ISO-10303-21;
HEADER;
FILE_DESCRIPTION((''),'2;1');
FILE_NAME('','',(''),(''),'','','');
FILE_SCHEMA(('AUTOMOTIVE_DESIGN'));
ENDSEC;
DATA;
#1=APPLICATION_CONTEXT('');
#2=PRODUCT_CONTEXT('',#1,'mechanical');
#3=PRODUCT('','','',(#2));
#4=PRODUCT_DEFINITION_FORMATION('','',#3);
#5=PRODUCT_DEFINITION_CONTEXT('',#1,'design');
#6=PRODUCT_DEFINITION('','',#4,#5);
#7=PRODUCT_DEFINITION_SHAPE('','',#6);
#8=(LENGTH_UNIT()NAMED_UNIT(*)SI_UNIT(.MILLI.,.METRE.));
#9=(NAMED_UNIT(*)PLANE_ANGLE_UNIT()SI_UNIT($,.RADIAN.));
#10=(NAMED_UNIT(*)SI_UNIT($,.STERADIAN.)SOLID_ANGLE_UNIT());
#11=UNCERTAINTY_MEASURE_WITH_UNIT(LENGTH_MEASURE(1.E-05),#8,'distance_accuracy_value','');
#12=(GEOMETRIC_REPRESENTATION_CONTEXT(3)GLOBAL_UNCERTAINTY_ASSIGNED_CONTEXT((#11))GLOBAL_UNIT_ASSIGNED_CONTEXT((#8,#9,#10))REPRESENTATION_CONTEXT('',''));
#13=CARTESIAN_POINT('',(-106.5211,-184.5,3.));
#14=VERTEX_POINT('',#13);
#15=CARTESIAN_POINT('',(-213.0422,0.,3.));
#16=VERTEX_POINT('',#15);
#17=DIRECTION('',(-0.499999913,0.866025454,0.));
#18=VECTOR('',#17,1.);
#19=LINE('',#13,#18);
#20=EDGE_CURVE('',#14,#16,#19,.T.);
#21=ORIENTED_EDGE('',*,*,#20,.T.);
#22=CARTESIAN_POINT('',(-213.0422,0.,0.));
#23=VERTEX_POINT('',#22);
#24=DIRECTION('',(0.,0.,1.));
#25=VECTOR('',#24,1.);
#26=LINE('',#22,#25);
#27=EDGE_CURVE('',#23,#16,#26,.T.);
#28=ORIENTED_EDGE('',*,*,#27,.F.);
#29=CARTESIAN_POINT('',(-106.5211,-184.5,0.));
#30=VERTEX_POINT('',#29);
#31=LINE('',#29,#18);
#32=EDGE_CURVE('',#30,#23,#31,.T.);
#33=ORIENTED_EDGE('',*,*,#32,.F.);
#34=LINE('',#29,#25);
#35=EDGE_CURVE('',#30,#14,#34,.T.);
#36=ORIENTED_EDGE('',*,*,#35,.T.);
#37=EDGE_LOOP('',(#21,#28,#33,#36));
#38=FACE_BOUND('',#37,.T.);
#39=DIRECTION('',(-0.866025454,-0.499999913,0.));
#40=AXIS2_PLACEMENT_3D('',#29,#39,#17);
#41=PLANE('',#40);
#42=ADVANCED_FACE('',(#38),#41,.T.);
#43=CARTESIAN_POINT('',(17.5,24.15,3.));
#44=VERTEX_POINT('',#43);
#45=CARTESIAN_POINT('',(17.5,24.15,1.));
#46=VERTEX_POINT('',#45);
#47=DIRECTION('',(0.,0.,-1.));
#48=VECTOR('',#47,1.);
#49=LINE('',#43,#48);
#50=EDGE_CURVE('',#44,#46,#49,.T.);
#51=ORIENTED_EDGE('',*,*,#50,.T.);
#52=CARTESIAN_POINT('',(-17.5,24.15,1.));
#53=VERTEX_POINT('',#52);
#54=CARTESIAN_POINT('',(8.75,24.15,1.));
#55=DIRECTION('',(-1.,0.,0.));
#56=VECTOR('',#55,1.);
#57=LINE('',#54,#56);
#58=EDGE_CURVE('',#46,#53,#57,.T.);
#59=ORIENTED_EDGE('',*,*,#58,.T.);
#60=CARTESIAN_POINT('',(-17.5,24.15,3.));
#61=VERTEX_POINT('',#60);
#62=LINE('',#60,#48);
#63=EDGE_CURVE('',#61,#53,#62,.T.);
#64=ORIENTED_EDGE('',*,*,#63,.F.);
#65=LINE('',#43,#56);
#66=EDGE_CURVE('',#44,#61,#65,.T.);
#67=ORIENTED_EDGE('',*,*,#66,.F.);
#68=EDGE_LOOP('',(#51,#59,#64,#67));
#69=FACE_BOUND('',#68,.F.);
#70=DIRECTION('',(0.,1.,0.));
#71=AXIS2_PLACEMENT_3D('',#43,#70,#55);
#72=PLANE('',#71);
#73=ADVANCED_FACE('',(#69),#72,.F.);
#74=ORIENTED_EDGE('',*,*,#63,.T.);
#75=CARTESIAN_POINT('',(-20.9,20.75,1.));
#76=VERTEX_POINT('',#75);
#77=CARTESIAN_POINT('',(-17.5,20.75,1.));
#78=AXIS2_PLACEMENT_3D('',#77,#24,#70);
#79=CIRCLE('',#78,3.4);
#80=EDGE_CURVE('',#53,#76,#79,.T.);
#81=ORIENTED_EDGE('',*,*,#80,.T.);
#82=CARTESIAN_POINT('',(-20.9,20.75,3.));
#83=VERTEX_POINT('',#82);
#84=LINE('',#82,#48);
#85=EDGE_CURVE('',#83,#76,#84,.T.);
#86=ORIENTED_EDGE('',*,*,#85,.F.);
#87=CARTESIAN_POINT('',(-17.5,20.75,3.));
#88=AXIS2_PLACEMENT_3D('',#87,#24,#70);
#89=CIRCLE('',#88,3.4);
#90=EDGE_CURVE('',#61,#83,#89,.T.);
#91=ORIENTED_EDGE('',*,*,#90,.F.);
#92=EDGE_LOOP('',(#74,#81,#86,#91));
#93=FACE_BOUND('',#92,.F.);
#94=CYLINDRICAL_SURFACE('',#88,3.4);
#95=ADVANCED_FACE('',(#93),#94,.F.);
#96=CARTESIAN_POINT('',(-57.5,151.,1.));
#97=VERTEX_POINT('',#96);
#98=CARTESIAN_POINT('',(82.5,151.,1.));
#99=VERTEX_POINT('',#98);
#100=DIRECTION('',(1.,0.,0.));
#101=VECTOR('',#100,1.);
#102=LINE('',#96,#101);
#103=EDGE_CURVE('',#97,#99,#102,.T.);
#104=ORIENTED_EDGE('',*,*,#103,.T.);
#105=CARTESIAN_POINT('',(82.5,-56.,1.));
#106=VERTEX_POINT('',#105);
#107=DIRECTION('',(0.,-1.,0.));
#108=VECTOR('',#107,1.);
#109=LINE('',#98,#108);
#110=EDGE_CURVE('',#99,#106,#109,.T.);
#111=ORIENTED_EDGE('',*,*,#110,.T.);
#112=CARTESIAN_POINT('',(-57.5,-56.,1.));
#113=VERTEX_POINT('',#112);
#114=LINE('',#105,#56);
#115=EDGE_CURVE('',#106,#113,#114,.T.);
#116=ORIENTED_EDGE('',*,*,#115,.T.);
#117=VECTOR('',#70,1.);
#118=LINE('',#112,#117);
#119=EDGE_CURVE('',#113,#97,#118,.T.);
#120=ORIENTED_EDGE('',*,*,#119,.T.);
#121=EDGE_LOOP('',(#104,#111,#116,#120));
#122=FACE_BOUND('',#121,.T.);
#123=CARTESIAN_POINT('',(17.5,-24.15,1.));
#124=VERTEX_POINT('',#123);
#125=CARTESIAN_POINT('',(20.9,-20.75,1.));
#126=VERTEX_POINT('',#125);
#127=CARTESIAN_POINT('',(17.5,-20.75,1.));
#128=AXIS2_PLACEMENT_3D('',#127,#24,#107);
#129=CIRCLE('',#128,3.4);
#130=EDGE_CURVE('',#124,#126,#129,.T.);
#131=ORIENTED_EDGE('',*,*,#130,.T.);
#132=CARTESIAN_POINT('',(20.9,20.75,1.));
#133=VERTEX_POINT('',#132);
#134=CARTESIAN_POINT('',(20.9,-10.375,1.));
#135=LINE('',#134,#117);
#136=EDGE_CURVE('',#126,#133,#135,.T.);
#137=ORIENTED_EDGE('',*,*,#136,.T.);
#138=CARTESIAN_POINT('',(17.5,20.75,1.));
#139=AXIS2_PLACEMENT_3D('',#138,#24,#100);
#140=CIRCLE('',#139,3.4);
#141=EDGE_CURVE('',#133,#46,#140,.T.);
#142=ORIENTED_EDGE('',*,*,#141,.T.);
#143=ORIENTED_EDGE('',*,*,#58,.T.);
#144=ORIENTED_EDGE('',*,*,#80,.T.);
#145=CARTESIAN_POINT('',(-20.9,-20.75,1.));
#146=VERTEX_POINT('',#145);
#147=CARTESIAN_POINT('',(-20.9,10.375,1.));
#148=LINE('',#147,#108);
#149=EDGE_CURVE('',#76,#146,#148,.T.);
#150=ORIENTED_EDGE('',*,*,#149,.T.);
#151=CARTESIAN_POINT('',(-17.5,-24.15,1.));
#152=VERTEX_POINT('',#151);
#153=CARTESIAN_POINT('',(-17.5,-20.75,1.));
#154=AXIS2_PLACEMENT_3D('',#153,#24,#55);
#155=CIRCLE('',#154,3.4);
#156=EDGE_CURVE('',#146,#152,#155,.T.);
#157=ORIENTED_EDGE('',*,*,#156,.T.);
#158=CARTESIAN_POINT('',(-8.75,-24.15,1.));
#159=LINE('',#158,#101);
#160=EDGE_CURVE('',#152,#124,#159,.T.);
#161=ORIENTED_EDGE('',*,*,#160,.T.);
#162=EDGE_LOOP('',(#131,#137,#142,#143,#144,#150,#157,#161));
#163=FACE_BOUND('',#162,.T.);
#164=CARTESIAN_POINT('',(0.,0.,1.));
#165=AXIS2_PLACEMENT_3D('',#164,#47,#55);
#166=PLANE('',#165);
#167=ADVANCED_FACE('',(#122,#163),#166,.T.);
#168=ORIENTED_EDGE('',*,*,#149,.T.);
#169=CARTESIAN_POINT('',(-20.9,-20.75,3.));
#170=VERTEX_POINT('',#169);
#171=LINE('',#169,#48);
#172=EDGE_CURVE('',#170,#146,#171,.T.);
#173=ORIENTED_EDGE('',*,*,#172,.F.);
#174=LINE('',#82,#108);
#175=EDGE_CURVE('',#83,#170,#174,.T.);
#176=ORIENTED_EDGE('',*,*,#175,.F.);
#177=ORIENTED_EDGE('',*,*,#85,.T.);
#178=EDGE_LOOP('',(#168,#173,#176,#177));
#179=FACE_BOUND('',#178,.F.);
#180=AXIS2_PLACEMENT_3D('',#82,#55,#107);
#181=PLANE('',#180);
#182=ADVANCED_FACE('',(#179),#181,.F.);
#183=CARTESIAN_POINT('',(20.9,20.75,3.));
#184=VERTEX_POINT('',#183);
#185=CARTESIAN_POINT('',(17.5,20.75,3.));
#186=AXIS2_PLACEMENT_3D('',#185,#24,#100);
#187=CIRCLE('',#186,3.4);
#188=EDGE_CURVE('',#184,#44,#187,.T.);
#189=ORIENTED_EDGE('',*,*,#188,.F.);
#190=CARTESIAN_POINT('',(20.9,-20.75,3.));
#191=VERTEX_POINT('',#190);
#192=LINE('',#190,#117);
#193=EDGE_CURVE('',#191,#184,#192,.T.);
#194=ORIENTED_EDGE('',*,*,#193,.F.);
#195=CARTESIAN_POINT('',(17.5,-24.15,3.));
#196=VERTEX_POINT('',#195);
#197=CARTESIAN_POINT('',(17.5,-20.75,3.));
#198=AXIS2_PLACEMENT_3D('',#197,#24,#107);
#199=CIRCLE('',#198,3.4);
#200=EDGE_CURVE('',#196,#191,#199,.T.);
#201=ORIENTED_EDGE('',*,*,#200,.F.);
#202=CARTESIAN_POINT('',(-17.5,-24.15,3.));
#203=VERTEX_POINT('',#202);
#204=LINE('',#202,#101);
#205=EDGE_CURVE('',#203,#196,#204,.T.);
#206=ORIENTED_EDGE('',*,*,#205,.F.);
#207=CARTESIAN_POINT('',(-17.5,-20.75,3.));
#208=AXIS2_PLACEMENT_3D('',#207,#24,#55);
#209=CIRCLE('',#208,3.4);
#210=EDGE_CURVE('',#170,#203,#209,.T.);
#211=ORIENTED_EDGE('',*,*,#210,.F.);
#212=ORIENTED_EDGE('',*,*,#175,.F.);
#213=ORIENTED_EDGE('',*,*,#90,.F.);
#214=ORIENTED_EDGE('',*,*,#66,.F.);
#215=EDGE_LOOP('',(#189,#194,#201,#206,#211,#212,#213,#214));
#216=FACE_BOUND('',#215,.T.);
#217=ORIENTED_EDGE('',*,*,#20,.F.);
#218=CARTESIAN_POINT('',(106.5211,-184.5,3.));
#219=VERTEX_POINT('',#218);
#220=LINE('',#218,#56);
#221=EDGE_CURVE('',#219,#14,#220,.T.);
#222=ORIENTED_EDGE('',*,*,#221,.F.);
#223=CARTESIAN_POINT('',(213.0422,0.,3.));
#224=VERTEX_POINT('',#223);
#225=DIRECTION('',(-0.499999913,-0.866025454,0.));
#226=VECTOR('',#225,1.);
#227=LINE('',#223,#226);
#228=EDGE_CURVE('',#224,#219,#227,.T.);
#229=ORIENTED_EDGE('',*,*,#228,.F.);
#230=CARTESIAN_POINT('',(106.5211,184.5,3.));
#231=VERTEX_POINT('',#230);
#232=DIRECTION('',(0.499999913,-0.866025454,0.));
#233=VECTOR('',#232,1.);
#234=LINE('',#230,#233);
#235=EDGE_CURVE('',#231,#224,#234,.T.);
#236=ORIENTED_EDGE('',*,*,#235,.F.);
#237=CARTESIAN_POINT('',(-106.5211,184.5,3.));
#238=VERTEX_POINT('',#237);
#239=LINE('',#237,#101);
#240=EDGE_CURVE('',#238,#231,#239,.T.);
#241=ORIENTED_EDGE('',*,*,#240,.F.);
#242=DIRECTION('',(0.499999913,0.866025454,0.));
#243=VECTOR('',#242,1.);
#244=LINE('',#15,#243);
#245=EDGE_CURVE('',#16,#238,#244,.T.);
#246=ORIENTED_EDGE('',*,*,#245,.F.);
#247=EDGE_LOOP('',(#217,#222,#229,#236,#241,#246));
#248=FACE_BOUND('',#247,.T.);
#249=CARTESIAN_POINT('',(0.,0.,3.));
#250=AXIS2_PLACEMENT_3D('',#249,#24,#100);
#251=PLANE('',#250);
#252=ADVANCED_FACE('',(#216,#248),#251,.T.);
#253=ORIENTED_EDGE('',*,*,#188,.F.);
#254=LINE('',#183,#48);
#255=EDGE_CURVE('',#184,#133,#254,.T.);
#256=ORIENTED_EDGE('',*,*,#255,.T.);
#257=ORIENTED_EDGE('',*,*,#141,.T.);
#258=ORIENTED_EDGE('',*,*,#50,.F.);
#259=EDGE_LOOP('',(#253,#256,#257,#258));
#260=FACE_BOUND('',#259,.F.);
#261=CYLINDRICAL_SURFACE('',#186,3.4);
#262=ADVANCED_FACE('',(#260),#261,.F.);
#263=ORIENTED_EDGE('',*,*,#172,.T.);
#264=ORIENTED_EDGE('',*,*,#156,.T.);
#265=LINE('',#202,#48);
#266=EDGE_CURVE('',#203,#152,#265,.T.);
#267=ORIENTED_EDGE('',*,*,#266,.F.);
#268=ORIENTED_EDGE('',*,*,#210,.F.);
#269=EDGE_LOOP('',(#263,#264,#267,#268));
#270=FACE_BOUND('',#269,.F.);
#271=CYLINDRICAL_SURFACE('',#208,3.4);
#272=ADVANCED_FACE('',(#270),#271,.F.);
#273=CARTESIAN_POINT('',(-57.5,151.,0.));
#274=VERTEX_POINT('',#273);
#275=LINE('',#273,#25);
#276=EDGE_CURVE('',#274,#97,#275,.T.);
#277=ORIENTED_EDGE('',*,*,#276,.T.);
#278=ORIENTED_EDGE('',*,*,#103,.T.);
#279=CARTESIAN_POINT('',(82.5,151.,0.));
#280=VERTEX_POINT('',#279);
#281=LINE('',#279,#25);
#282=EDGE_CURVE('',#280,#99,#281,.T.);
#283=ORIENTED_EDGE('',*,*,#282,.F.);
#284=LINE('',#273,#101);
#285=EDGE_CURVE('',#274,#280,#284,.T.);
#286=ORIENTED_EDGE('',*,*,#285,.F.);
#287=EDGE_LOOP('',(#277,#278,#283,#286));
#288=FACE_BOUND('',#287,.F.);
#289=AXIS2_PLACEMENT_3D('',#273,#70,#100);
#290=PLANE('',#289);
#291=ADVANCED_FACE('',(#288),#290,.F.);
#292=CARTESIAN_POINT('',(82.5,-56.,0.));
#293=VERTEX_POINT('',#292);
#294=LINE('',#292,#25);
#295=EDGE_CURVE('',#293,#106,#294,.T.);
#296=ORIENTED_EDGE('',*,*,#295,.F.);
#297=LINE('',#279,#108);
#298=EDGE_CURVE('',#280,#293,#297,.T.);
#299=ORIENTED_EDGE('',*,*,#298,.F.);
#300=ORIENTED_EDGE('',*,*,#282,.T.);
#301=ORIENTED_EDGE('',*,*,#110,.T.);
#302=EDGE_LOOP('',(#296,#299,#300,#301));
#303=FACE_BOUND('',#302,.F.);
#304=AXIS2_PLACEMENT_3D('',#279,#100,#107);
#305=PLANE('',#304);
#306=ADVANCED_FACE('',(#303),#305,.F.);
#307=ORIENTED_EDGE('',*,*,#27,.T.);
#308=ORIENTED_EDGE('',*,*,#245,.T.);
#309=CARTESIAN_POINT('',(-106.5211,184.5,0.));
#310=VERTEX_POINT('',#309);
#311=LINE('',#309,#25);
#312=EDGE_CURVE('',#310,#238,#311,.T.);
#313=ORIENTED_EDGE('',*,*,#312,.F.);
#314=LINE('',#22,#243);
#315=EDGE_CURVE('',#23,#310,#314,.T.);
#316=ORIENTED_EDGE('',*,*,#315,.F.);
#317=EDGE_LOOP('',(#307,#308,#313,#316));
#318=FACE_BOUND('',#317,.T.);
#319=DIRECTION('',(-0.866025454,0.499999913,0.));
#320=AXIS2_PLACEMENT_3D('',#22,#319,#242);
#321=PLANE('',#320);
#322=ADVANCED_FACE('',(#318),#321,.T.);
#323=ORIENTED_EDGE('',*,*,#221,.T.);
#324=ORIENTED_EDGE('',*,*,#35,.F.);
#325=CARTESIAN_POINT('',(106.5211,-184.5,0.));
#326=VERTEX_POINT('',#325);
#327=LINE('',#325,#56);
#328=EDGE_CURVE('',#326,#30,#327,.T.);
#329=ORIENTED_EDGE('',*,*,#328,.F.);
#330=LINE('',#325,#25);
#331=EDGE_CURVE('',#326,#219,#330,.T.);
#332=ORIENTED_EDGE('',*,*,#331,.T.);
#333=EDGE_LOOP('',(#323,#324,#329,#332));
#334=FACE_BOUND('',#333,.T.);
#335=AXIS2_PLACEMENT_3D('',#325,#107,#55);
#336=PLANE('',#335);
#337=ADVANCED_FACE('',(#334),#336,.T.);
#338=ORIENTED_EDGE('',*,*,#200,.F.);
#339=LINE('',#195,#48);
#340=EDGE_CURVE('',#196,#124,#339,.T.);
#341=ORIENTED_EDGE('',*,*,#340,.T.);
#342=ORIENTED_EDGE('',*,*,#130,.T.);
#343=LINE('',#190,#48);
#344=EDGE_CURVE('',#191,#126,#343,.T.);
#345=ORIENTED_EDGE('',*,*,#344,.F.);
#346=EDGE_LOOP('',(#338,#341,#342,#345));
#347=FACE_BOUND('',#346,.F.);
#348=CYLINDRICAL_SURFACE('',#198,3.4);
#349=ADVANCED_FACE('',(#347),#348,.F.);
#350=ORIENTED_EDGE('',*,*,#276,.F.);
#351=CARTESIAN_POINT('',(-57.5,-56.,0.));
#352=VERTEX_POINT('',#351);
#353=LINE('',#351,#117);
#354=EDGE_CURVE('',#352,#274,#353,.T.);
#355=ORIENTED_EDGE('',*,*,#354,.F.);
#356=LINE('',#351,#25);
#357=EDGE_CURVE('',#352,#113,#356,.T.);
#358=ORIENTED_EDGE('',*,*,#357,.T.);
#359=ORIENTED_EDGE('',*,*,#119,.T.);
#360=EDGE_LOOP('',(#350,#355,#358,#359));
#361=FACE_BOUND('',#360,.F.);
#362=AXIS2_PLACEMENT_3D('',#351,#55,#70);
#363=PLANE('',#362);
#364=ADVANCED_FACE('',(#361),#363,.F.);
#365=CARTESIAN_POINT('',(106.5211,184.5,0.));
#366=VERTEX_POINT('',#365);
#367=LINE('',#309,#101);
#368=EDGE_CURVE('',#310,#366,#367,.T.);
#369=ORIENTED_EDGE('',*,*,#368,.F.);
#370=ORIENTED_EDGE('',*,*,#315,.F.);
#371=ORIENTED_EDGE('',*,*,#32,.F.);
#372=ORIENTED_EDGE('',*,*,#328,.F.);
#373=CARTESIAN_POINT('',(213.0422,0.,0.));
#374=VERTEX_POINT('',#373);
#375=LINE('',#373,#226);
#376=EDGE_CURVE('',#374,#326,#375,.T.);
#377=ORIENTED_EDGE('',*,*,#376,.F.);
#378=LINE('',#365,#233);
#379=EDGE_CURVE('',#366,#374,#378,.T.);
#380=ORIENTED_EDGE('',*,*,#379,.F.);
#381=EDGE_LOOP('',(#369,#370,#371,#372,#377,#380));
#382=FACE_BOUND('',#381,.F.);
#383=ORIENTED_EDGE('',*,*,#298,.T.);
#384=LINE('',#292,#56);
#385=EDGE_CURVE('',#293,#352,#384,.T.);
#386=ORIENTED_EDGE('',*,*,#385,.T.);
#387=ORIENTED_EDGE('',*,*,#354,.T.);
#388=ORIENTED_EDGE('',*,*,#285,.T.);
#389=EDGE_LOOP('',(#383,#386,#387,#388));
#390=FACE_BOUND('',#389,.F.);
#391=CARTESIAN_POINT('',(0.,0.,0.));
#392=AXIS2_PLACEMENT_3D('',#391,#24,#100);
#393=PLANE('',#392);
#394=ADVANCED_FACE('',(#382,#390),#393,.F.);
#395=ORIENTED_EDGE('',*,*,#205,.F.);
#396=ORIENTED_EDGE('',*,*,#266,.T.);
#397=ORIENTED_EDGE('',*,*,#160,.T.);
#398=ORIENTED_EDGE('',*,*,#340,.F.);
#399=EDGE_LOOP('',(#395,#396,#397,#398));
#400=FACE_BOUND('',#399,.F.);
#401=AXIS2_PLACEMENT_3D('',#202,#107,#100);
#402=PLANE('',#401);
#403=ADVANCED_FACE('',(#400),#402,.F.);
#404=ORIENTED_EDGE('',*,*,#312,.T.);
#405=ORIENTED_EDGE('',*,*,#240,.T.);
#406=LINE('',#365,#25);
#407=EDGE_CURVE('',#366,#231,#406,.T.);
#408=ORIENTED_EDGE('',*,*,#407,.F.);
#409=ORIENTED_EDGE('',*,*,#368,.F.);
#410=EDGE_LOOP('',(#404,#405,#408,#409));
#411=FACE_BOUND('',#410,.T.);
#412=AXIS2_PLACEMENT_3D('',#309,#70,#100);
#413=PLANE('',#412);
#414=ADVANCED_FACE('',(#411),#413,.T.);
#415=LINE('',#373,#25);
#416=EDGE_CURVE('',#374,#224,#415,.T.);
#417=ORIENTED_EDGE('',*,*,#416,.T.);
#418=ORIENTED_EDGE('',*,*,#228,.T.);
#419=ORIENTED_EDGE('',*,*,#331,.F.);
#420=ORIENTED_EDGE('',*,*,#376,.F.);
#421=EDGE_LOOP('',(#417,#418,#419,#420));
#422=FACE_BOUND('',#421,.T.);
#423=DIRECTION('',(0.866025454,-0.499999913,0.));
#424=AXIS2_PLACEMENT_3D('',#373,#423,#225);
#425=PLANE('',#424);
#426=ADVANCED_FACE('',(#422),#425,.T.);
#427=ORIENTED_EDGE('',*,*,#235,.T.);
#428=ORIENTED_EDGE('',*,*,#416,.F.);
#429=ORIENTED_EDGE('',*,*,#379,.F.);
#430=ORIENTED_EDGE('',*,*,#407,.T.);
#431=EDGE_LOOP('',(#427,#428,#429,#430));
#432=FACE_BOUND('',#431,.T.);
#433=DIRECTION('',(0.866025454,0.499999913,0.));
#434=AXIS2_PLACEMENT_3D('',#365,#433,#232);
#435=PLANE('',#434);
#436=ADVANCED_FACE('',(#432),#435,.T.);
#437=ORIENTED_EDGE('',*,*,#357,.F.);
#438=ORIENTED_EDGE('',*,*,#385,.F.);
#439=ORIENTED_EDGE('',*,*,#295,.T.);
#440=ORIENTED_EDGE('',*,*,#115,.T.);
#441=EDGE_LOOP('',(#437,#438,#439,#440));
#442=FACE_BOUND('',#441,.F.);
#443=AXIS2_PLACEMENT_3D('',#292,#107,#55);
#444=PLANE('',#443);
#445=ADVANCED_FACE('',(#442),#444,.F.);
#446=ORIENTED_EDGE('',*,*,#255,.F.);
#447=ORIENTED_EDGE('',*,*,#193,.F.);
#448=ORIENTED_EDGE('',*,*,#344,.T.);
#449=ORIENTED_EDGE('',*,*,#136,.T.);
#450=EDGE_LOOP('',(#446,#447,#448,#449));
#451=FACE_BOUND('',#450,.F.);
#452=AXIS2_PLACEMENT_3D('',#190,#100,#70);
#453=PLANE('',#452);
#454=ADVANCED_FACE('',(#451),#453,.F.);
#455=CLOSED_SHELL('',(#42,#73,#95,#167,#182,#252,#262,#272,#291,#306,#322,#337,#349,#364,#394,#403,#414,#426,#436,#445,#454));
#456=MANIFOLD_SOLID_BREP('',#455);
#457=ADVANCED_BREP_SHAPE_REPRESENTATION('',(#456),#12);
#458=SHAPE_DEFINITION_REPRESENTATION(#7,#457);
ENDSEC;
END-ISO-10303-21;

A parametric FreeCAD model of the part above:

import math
import FreeCAD as App
import Part
import Sketcher
Q = App.Units.Quantity

doc = App.newDocument("Part")
body = doc.addObject("PartDesign::Body", "Body")

sketch1 = body.newObject("Sketcher::SketchObject", "Sketch")
sketch1.AttachmentSupport = (doc.getObject("XY_Plane"), [""])
sketch1.MapMode = "FlatFace"
sketch1.addGeometry([
    Part.LineSegment(App.Vector(107, -184, 0), App.Vector(213, 0, 0)),
    Part.LineSegment(App.Vector(213, 0, 0), App.Vector(107, 184, 0)),
    Part.LineSegment(App.Vector(107, 184, 0), App.Vector(-107, 184, 0)),
    Part.LineSegment(App.Vector(-107, 184, 0), App.Vector(-213, 0, 0)),
    Part.LineSegment(App.Vector(-213, 0, 0), App.Vector(-107, -184, 0)),
    Part.LineSegment(App.Vector(-107, -184, 0), App.Vector(107, -184, 0)),
], False)
sketch1.addConstraint([
    Sketcher.Constraint("Coincident", 0, 2, 1, 1),
    Sketcher.Constraint("Coincident", 1, 2, 2, 1),
    Sketcher.Constraint("Coincident", 2, 2, 3, 1),
    Sketcher.Constraint("Coincident", 3, 2, 4, 1),
    Sketcher.Constraint("Coincident", 4, 2, 5, 1),
    Sketcher.Constraint("Coincident", 5, 2, 0, 1),
    Sketcher.Constraint("Horizontal", 2),
    Sketcher.Constraint("Horizontal", 5),
    Sketcher.Constraint("Symmetric", 0, 2, 3, 2, -1, 1),
    Sketcher.Constraint("Symmetric", 1, 2, 4, 2, -1, 1),
    Sketcher.Constraint("PointOnObject", 0, 2, -1),
    Sketcher.Constraint("Parallel", 0, 3),
    Sketcher.Constraint("Vertical", 2, 2, 4, 2),
    Sketcher.Constraint("DistanceY", 4, 2, 2, 2, Q("369 mm")),
    Sketcher.Constraint("Angle", 0, Q("60 deg")),
    Sketcher.Constraint("DistanceX", 2, 2, 2, 1, Q("213.0422 mm")),
])
pad1 = body.newObject("PartDesign::Pad", "Pad")
pad1.Profile = sketch1
pad1.Length = 3

sketch2 = body.newObject("Sketcher::SketchObject", "Sketch001")
sketch2.AttachmentSupport = (doc.getObject("XY_Plane"), [""])
sketch2.MapMode = "FlatFace"
sketch2.AttachmentOffset = App.Placement(App.Vector(0, 0, 3), App.Rotation())
sketch2.addGeometry([
    Part.ArcOfCircle(Part.Circle(App.Vector(17.5, -20.8, 0), App.Vector(0, 0, 1), 3.4), math.radians(-90), math.radians(0)),
    Part.LineSegment(App.Vector(20.9, -20.8, 0), App.Vector(20.9, 20.8, 0)),
    Part.ArcOfCircle(Part.Circle(App.Vector(17.5, 20.8, 0), App.Vector(0, 0, 1), 3.4), math.radians(0), math.radians(90)),
    Part.LineSegment(App.Vector(17.5, 24.1, 0), App.Vector(-17.5, 24.1, 0)),
    Part.ArcOfCircle(Part.Circle(App.Vector(-17.5, 20.8, 0), App.Vector(0, 0, 1), 3.4), math.radians(90), math.radians(180)),
    Part.LineSegment(App.Vector(-20.9, 20.8, 0), App.Vector(-20.9, -20.8, 0)),
    Part.ArcOfCircle(Part.Circle(App.Vector(-17.5, -20.8, 0), App.Vector(0, 0, 1), 3.4), math.radians(180), math.radians(270)),
    Part.LineSegment(App.Vector(-17.5, -24.1, 0), App.Vector(17.5, -24.1, 0)),
], False)
sketch2.addConstraint([
    Sketcher.Constraint("Tangent", 0, 2, 1, 1),
    Sketcher.Constraint("Tangent", 1, 2, 2, 1),
    Sketcher.Constraint("Tangent", 2, 2, 3, 1),
    Sketcher.Constraint("Tangent", 3, 2, 4, 1),
    Sketcher.Constraint("Tangent", 4, 2, 5, 1),
    Sketcher.Constraint("Tangent", 5, 2, 6, 1),
    Sketcher.Constraint("Tangent", 6, 2, 7, 1),
    Sketcher.Constraint("Tangent", 7, 2, 0, 1),
    Sketcher.Constraint("Vertical", 1),
    Sketcher.Constraint("Horizontal", 3),
    Sketcher.Constraint("Vertical", 5),
    Sketcher.Constraint("Horizontal", 7),
    Sketcher.Constraint("Equal", 0, 2),
    Sketcher.Constraint("Equal", 2, 4),
    Sketcher.Constraint("Equal", 4, 6),
    Sketcher.Constraint("Symmetric", 0, 3, 4, 3, -1, 1),
    Sketcher.Constraint("Radius", 0, Q("3.4 mm")),
    Sketcher.Constraint("DistanceX", 3, 2, 3, 1, Q("35 mm")),
    Sketcher.Constraint("DistanceY", 1, 1, 1, 2, Q("41.5 mm")),
])
pocket1 = body.newObject("PartDesign::Pocket", "Pocket")
pocket1.Profile = sketch2
pocket1.Length = 3

sketch3 = body.newObject("Sketcher::SketchObject", "Sketch002")
sketch3.AttachmentSupport = (doc.getObject("XY_Plane"), [""])
sketch3.MapMode = "FlatFace"
sketch3.addGeometry([
    Part.LineSegment(App.Vector(82, 151, 0), App.Vector(82, -56, 0)),
    Part.LineSegment(App.Vector(82, -56, 0), App.Vector(-58, -56, 0)),
    Part.LineSegment(App.Vector(-58, -56, 0), App.Vector(-58, 151, 0)),
    Part.LineSegment(App.Vector(-58, 151, 0), App.Vector(82, 151, 0)),
], False)
sketch3.addConstraint([
    Sketcher.Constraint("Coincident", 0, 2, 1, 1),
    Sketcher.Constraint("Coincident", 1, 2, 2, 1),
    Sketcher.Constraint("Coincident", 2, 2, 3, 1),
    Sketcher.Constraint("Coincident", 3, 2, 0, 1),
    Sketcher.Constraint("Vertical", 0),
    Sketcher.Constraint("Horizontal", 1),
    Sketcher.Constraint("Vertical", 2),
    Sketcher.Constraint("Horizontal", 3),
    Sketcher.Constraint("DistanceX", 1, 2, 1, 1, Q("140 mm")),
    Sketcher.Constraint("DistanceY", 0, 2, 0, 1, Q("207 mm")),
    Sketcher.Constraint("DistanceY", 0, 2, -1, 1, Q("56 mm")),
    Sketcher.Constraint("DistanceX", 1, 2, -1, 1, Q("57.5 mm")),
])
pocket2 = body.newObject("PartDesign::Pocket", "Pocket001")
pocket2.Profile = sketch3
pocket2.Length = 1
pocket2.Reversed = True

doc.recompute()
